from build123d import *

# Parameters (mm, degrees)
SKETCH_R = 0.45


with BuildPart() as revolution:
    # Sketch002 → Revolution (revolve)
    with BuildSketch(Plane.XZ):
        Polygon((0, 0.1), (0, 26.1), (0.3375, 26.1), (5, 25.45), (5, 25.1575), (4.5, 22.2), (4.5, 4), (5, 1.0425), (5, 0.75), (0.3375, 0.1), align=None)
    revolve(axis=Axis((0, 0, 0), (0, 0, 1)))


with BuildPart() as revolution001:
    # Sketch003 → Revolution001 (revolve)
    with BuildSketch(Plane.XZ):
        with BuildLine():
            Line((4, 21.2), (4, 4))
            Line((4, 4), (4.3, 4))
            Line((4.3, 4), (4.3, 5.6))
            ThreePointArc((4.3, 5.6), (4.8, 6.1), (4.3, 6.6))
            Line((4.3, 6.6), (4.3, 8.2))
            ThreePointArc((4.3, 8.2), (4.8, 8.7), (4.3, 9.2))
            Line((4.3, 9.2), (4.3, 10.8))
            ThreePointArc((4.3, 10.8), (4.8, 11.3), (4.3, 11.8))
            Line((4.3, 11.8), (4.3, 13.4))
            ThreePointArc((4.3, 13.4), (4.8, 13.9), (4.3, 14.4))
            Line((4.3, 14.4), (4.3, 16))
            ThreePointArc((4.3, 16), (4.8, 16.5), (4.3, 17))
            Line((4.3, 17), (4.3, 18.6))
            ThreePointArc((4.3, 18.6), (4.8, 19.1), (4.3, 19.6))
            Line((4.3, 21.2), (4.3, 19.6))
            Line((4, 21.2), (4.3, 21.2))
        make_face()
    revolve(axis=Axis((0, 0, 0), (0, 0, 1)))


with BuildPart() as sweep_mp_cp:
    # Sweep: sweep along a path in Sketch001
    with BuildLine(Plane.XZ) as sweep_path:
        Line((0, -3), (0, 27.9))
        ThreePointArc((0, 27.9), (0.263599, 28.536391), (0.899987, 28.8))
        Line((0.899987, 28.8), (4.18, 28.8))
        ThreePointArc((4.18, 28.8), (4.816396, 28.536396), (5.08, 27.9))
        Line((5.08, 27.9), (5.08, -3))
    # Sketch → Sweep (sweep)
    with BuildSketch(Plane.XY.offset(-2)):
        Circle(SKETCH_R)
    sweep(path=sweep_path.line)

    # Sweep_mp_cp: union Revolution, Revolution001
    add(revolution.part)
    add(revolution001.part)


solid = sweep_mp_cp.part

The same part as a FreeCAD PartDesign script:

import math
import FreeCAD as App
import Part
import Sketcher

V = App.Vector


def add_polygon(sketch, points):
    """Adds a closed chain of lines whose ends are joined by coincident constraints."""
    first, n = sketch.GeometryCount, len(points)
    for a, b in zip(points, points[1:] + points[:1]):
        sketch.addGeometry(Part.LineSegment(App.Vector(*a, 0), App.Vector(*b, 0)), False)
    for i in range(n):
        sketch.addConstraint(Sketcher.Constraint("Coincident", first + i, 2, first + (i + 1) % n, 1))

doc = App.newDocument("Part")
body = doc.addObject("PartDesign::Body", "Body")

# Sketch on XZ plane
sketch1 = body.newObject("Sketcher::SketchObject", "Sketch")
sketch1.AttachmentSupport = (doc.getObject("XZ_Plane"), [""])
sketch1.MapMode = "FlatFace"
add_polygon(sketch1, [(0, 26.1), (0, 0.1), (0.34, 0.1), (5, 0.75), (5, 1.04), (4.5, 4), (4.5, 22.2), (5, 25.16), (5, 25.45), (0.34, 26.1)])  # lines 0-9
sketch1.addConstraint([
    Sketcher.Constraint("Vertical", 0),
    Sketcher.Constraint("Horizontal", 1),
    Sketcher.Constraint("Vertical", 3),
    Sketcher.Constraint("Vertical", 5),
    Sketcher.Constraint("Vertical", 7),
    Sketcher.Constraint("Horizontal", 9),
    Sketcher.Constraint("PointOnObject", 0, 2, -2),
    Sketcher.Constraint("Vertical", 3, 2, 6, 2),
    Sketcher.Constraint("Vertical", 1, 2, 8, 2),
    Sketcher.Constraint("Equal", 3, 7),
    Sketcher.Constraint("Equal", 4, 6),
    Sketcher.Constraint("Equal", 2, 8),
    Sketcher.Constraint("DistanceY", 0, 2, 0, 1, 26.0),
    Sketcher.Constraint("DistanceY", 5, 1, 5, 2, 18.2),
    Sketcher.Constraint("DistanceX", -1, 1, 2, 2, 5.0),
    Sketcher.Constraint("DistanceY", -1, 1, 4, 2, 4.0),
    Sketcher.Constraint("DistanceX", -1, 1, 4, 2, 4.5),
    Sketcher.Constraint("DistanceY", 2, 2, 7, 2, 24.7),
    Sketcher.Constraint("DistanceX", 1, 1, 1, 2, 0.3375),
    Sketcher.Constraint("DistanceY", 3, 1, 3, 2, 0.2925),
])
revolution = body.newObject("PartDesign::Revolution", "Revolution")
revolution.Profile = sketch1
revolution.ReferenceAxis = (sketch1, ["V_Axis"])
revolution.Angle = 360
body2 = doc.addObject("PartDesign::Body", "Body001")

# Sketch on XZ plane
sketch2 = body2.newObject("Sketcher::SketchObject", "Sketch001")
sketch2.AttachmentSupport = (doc.getObject("XZ_Plane001"), [""])
sketch2.MapMode = "FlatFace"
sketch2.addGeometry([
    Part.LineSegment(V(4, 21.2, 0), V(4, 4, 0)),  # 0
    Part.LineSegment(V(4, 4, 0), V(4.3, 4, 0)),  # 1
    Part.LineSegment(V(4.3, 4, 0), V(4.3, 5.6, 0)),  # 2
    Part.ArcOfCircle(Part.Circle(V(4.3, 6.1, 0), V(0, 0, 1), 0.5), math.radians(-90), math.radians(90)),  # 3
    Part.LineSegment(V(4.3, 6.6, 0), V(4.3, 8.2, 0)),  # 4
    Part.ArcOfCircle(Part.Circle(V(4.3, 8.7, 0), V(0, 0, 1), 0.5), math.radians(-90), math.radians(90)),  # 5
    Part.LineSegment(V(4.3, 9.2, 0), V(4.3, 10.8, 0)),  # 6
    Part.ArcOfCircle(Part.Circle(V(4.3, 11.3, 0), V(0, 0, 1), 0.5), math.radians(-90), math.radians(90)),  # 7
    Part.LineSegment(V(4.3, 11.8, 0), V(4.3, 13.4, 0)),  # 8
    Part.ArcOfCircle(Part.Circle(V(4.3, 13.9, 0), V(0, 0, 1), 0.5), math.radians(-90), math.radians(90)),  # 9
    Part.LineSegment(V(4.3, 14.4, 0), V(4.3, 16, 0)),  # 10
    Part.ArcOfCircle(Part.Circle(V(4.3, 16.5, 0), V(0, 0, 1), 0.5), math.radians(-90), math.radians(90)),  # 11
    Part.LineSegment(V(4.3, 17, 0), V(4.3, 18.6, 0)),  # 12
    Part.ArcOfCircle(Part.Circle(V(4.3, 19.1, 0), V(0, 0, 1), 0.5), math.radians(-90), math.radians(90)),  # 13
    Part.LineSegment(V(4.3, 19.6, 0), V(4.3, 21.2, 0)),  # 14
    Part.LineSegment(V(4.3, 21.2, 0), V(4, 21.2, 0)),  # 15
], False)
sketch2.addConstraint([
    Sketcher.Constraint("Coincident", 0, 2, 1, 1),
    Sketcher.Constraint("Coincident", 1, 2, 2, 1),
    Sketcher.Constraint("Coincident", 2, 2, 3, 1),
    Sketcher.Constraint("Coincident", 3, 2, 4, 1),
    Sketcher.Constraint("Coincident", 4, 2, 5, 1),
    Sketcher.Constraint("Coincident", 5, 2, 6, 1),
    Sketcher.Constraint("Coincident", 6, 2, 7, 1),
    Sketcher.Constraint("Coincident", 7, 2, 8, 1),
    Sketcher.Constraint("Coincident", 8, 2, 9, 1),
    Sketcher.Constraint("Coincident", 9, 2, 10, 1),
    Sketcher.Constraint("Coincident", 10, 2, 11, 1),
    Sketcher.Constraint("Coincident", 11, 2, 12, 1),
    Sketcher.Constraint("Coincident", 12, 2, 13, 1),
    Sketcher.Constraint("Coincident", 13, 2, 14, 1),
    Sketcher.Constraint("Coincident", 14, 2, 15, 1),
    Sketcher.Constraint("Coincident", 15, 2, 0, 1),
    Sketcher.Constraint("Vertical", 0),
    Sketcher.Constraint("Horizontal", 1),
    Sketcher.Constraint("Vertical", 2),
    Sketcher.Constraint("Vertical", 4),
    Sketcher.Constraint("Vertical", 6),
    Sketcher.Constraint("Vertical", 8),
    Sketcher.Constraint("Vertical", 10),
    Sketcher.Constraint("Vertical", 12),
    Sketcher.Constraint("Vertical", 14),
    Sketcher.Constraint("Horizontal", 15),
    Sketcher.Constraint("Equal", 3, 5),
    Sketcher.Constraint("Equal", 5, 7),
    Sketcher.Constraint("Equal", 7, 9),
    Sketcher.Constraint("Equal", 9, 11),
    Sketcher.Constraint("Equal", 11, 13),
    Sketcher.Constraint("Vertical", 3, 3, 5, 3),
    Sketcher.Constraint("Vertical", 5, 3, 7, 3),
    Sketcher.Constraint("Vertical", 7, 3, 9, 3),
    Sketcher.Constraint("Vertical", 9, 3, 11, 3),
    Sketcher.Constraint("Vertical", 11, 3, 13, 3),
    Sketcher.Constraint("Vertical", 13, 3, 1, 2),
    Sketcher.Constraint("Vertical", 2, 2, 3, 2),
    Sketcher.Constraint("Vertical", 4, 2, 5, 2),
    Sketcher.Constraint("Vertical", 6, 2, 7, 2),
    Sketcher.Constraint("Vertical", 8, 2, 9, 2),
    Sketcher.Constraint("Vertical", 10, 2, 11, 2),
    Sketcher.Constraint("Vertical", 12, 2, 13, 2),
    Sketcher.Constraint("Equal", 2, 4),
    Sketcher.Constraint("Equal", 4, 6),
    Sketcher.Constraint("Equal", 6, 8),
    Sketcher.Constraint("Equal", 8, 10),
    Sketcher.Constraint("Equal", 10, 12),
    Sketcher.Constraint("Equal", 12, 14),
    Sketcher.Constraint("Radius", 3, 0.5),
    Sketcher.Constraint("DistanceX", 1, 1, 1, 2, 0.3),
    Sketcher.Constraint("DistanceY", 0, 2, 0, 1, 17.2),
    Sketcher.Constraint("DistanceX", -1, 1, 0, 2, 4.0),
    Sketcher.Constraint("DistanceY", -1, 1, 0, 2, 4.0),
])
revolution2 = body2.newObject("PartDesign::Revolution", "Revolution001")
revolution2.Profile = sketch2
revolution2.ReferenceAxis = (sketch2, ["V_Axis"])
revolution2.Angle = 360
body3 = doc.addObject("PartDesign::Body", "Body002")

# Sketch on XY plane
sketch3 = body3.newObject("Sketcher::SketchObject", "Sketch002")
sketch3.AttachmentSupport = (doc.getObject("XY_Plane002"), [""])
sketch3.MapMode = "FlatFace"
sketch3.AttachmentOffset = App.Placement(V(0, 0, -2), App.Rotation())
sketch3.addGeometry(Part.Circle(V(0, 0, 0), V(0, 0, 1), 0.45), False)
sketch3.addConstraint([
    Sketcher.Constraint("Coincident", 0, 3, -1, 1),
    Sketcher.Constraint("Diameter", 0, 0.9),
])

# Sketch on XZ plane
sketch4 = body3.newObject("Sketcher::SketchObject", "Sketch003")
sketch4.AttachmentSupport = (doc.getObject("XZ_Plane002"), [""])
sketch4.MapMode = "FlatFace"
sketch4.addGeometry([
    Part.LineSegment(V(0, -3, 0), V(0, 27.9, 0)),  # 0
    Part.ArcOfCircle(Part.Circle(V(0.9, 27.9, 0), V(0, 0, 1), 0.9), math.radians(90), math.radians(180)),  # 1
    Part.LineSegment(V(0.9, 28.8, 0), V(4.2, 28.8, 0)),  # 2
    Part.ArcOfCircle(Part.Circle(V(4.2, 27.9, 0), V(0, 0, 1), 0.9), math.radians(0), math.radians(90)),  # 3
    Part.LineSegment(V(5.1, 27.9, 0), V(5.1, -3, 0)),  # 4
], False)
sketch4.addConstraint([
    Sketcher.Constraint("Tangent", 0, 2, 1, 2),
    Sketcher.Constraint("Coincident", 1, 1, 2, 1),
    Sketcher.Constraint("Tangent", 2, 2, 3, 2),
    Sketcher.Constraint("Tangent", 3, 1, 4, 1),
    Sketcher.Constraint("Vertical", 0),
    Sketcher.Constraint("Horizontal", 2),
    Sketcher.Constraint("Vertical", 4),
    Sketcher.Constraint("Equal", 1, 3),
    Sketcher.Constraint("PointOnObject", 0, 1, -2),
    Sketcher.Constraint("Horizontal", 0, 1, 4, 2),
    Sketcher.Constraint("Radius", 1, 0.9),
    Sketcher.Constraint("DistanceY", 0, 1, 0, 2, 30.9),
    Sketcher.Constraint("DistanceY", 0, 1, -1, 1, 3.0),
    Sketcher.Constraint("DistanceX", -1, 1, 3, 3, 4.18),
    Sketcher.Constraint("DistanceX", 2, 1, 2, 2, 3.280013),
])
doc.recompute()

additivepipe = body3.newObject("PartDesign::AdditivePipe", "AdditivePipe")
additivepipe.Profile = sketch3
additivepipe.Spine = (sketch4, ["Edge1", "Edge2", "Edge3", "Edge4", "Edge5"])
doc.recompute()

boolean = body3.newObject("PartDesign::Boolean", "Boolean")
boolean.Type = "Fuse"
boolean.addObjects([body])
doc.recompute()

boolean2 = body3.newObject("PartDesign::Boolean", "Boolean001")
boolean2.Type = "Fuse"
boolean2.addObjects([body2])

doc.recompute()
